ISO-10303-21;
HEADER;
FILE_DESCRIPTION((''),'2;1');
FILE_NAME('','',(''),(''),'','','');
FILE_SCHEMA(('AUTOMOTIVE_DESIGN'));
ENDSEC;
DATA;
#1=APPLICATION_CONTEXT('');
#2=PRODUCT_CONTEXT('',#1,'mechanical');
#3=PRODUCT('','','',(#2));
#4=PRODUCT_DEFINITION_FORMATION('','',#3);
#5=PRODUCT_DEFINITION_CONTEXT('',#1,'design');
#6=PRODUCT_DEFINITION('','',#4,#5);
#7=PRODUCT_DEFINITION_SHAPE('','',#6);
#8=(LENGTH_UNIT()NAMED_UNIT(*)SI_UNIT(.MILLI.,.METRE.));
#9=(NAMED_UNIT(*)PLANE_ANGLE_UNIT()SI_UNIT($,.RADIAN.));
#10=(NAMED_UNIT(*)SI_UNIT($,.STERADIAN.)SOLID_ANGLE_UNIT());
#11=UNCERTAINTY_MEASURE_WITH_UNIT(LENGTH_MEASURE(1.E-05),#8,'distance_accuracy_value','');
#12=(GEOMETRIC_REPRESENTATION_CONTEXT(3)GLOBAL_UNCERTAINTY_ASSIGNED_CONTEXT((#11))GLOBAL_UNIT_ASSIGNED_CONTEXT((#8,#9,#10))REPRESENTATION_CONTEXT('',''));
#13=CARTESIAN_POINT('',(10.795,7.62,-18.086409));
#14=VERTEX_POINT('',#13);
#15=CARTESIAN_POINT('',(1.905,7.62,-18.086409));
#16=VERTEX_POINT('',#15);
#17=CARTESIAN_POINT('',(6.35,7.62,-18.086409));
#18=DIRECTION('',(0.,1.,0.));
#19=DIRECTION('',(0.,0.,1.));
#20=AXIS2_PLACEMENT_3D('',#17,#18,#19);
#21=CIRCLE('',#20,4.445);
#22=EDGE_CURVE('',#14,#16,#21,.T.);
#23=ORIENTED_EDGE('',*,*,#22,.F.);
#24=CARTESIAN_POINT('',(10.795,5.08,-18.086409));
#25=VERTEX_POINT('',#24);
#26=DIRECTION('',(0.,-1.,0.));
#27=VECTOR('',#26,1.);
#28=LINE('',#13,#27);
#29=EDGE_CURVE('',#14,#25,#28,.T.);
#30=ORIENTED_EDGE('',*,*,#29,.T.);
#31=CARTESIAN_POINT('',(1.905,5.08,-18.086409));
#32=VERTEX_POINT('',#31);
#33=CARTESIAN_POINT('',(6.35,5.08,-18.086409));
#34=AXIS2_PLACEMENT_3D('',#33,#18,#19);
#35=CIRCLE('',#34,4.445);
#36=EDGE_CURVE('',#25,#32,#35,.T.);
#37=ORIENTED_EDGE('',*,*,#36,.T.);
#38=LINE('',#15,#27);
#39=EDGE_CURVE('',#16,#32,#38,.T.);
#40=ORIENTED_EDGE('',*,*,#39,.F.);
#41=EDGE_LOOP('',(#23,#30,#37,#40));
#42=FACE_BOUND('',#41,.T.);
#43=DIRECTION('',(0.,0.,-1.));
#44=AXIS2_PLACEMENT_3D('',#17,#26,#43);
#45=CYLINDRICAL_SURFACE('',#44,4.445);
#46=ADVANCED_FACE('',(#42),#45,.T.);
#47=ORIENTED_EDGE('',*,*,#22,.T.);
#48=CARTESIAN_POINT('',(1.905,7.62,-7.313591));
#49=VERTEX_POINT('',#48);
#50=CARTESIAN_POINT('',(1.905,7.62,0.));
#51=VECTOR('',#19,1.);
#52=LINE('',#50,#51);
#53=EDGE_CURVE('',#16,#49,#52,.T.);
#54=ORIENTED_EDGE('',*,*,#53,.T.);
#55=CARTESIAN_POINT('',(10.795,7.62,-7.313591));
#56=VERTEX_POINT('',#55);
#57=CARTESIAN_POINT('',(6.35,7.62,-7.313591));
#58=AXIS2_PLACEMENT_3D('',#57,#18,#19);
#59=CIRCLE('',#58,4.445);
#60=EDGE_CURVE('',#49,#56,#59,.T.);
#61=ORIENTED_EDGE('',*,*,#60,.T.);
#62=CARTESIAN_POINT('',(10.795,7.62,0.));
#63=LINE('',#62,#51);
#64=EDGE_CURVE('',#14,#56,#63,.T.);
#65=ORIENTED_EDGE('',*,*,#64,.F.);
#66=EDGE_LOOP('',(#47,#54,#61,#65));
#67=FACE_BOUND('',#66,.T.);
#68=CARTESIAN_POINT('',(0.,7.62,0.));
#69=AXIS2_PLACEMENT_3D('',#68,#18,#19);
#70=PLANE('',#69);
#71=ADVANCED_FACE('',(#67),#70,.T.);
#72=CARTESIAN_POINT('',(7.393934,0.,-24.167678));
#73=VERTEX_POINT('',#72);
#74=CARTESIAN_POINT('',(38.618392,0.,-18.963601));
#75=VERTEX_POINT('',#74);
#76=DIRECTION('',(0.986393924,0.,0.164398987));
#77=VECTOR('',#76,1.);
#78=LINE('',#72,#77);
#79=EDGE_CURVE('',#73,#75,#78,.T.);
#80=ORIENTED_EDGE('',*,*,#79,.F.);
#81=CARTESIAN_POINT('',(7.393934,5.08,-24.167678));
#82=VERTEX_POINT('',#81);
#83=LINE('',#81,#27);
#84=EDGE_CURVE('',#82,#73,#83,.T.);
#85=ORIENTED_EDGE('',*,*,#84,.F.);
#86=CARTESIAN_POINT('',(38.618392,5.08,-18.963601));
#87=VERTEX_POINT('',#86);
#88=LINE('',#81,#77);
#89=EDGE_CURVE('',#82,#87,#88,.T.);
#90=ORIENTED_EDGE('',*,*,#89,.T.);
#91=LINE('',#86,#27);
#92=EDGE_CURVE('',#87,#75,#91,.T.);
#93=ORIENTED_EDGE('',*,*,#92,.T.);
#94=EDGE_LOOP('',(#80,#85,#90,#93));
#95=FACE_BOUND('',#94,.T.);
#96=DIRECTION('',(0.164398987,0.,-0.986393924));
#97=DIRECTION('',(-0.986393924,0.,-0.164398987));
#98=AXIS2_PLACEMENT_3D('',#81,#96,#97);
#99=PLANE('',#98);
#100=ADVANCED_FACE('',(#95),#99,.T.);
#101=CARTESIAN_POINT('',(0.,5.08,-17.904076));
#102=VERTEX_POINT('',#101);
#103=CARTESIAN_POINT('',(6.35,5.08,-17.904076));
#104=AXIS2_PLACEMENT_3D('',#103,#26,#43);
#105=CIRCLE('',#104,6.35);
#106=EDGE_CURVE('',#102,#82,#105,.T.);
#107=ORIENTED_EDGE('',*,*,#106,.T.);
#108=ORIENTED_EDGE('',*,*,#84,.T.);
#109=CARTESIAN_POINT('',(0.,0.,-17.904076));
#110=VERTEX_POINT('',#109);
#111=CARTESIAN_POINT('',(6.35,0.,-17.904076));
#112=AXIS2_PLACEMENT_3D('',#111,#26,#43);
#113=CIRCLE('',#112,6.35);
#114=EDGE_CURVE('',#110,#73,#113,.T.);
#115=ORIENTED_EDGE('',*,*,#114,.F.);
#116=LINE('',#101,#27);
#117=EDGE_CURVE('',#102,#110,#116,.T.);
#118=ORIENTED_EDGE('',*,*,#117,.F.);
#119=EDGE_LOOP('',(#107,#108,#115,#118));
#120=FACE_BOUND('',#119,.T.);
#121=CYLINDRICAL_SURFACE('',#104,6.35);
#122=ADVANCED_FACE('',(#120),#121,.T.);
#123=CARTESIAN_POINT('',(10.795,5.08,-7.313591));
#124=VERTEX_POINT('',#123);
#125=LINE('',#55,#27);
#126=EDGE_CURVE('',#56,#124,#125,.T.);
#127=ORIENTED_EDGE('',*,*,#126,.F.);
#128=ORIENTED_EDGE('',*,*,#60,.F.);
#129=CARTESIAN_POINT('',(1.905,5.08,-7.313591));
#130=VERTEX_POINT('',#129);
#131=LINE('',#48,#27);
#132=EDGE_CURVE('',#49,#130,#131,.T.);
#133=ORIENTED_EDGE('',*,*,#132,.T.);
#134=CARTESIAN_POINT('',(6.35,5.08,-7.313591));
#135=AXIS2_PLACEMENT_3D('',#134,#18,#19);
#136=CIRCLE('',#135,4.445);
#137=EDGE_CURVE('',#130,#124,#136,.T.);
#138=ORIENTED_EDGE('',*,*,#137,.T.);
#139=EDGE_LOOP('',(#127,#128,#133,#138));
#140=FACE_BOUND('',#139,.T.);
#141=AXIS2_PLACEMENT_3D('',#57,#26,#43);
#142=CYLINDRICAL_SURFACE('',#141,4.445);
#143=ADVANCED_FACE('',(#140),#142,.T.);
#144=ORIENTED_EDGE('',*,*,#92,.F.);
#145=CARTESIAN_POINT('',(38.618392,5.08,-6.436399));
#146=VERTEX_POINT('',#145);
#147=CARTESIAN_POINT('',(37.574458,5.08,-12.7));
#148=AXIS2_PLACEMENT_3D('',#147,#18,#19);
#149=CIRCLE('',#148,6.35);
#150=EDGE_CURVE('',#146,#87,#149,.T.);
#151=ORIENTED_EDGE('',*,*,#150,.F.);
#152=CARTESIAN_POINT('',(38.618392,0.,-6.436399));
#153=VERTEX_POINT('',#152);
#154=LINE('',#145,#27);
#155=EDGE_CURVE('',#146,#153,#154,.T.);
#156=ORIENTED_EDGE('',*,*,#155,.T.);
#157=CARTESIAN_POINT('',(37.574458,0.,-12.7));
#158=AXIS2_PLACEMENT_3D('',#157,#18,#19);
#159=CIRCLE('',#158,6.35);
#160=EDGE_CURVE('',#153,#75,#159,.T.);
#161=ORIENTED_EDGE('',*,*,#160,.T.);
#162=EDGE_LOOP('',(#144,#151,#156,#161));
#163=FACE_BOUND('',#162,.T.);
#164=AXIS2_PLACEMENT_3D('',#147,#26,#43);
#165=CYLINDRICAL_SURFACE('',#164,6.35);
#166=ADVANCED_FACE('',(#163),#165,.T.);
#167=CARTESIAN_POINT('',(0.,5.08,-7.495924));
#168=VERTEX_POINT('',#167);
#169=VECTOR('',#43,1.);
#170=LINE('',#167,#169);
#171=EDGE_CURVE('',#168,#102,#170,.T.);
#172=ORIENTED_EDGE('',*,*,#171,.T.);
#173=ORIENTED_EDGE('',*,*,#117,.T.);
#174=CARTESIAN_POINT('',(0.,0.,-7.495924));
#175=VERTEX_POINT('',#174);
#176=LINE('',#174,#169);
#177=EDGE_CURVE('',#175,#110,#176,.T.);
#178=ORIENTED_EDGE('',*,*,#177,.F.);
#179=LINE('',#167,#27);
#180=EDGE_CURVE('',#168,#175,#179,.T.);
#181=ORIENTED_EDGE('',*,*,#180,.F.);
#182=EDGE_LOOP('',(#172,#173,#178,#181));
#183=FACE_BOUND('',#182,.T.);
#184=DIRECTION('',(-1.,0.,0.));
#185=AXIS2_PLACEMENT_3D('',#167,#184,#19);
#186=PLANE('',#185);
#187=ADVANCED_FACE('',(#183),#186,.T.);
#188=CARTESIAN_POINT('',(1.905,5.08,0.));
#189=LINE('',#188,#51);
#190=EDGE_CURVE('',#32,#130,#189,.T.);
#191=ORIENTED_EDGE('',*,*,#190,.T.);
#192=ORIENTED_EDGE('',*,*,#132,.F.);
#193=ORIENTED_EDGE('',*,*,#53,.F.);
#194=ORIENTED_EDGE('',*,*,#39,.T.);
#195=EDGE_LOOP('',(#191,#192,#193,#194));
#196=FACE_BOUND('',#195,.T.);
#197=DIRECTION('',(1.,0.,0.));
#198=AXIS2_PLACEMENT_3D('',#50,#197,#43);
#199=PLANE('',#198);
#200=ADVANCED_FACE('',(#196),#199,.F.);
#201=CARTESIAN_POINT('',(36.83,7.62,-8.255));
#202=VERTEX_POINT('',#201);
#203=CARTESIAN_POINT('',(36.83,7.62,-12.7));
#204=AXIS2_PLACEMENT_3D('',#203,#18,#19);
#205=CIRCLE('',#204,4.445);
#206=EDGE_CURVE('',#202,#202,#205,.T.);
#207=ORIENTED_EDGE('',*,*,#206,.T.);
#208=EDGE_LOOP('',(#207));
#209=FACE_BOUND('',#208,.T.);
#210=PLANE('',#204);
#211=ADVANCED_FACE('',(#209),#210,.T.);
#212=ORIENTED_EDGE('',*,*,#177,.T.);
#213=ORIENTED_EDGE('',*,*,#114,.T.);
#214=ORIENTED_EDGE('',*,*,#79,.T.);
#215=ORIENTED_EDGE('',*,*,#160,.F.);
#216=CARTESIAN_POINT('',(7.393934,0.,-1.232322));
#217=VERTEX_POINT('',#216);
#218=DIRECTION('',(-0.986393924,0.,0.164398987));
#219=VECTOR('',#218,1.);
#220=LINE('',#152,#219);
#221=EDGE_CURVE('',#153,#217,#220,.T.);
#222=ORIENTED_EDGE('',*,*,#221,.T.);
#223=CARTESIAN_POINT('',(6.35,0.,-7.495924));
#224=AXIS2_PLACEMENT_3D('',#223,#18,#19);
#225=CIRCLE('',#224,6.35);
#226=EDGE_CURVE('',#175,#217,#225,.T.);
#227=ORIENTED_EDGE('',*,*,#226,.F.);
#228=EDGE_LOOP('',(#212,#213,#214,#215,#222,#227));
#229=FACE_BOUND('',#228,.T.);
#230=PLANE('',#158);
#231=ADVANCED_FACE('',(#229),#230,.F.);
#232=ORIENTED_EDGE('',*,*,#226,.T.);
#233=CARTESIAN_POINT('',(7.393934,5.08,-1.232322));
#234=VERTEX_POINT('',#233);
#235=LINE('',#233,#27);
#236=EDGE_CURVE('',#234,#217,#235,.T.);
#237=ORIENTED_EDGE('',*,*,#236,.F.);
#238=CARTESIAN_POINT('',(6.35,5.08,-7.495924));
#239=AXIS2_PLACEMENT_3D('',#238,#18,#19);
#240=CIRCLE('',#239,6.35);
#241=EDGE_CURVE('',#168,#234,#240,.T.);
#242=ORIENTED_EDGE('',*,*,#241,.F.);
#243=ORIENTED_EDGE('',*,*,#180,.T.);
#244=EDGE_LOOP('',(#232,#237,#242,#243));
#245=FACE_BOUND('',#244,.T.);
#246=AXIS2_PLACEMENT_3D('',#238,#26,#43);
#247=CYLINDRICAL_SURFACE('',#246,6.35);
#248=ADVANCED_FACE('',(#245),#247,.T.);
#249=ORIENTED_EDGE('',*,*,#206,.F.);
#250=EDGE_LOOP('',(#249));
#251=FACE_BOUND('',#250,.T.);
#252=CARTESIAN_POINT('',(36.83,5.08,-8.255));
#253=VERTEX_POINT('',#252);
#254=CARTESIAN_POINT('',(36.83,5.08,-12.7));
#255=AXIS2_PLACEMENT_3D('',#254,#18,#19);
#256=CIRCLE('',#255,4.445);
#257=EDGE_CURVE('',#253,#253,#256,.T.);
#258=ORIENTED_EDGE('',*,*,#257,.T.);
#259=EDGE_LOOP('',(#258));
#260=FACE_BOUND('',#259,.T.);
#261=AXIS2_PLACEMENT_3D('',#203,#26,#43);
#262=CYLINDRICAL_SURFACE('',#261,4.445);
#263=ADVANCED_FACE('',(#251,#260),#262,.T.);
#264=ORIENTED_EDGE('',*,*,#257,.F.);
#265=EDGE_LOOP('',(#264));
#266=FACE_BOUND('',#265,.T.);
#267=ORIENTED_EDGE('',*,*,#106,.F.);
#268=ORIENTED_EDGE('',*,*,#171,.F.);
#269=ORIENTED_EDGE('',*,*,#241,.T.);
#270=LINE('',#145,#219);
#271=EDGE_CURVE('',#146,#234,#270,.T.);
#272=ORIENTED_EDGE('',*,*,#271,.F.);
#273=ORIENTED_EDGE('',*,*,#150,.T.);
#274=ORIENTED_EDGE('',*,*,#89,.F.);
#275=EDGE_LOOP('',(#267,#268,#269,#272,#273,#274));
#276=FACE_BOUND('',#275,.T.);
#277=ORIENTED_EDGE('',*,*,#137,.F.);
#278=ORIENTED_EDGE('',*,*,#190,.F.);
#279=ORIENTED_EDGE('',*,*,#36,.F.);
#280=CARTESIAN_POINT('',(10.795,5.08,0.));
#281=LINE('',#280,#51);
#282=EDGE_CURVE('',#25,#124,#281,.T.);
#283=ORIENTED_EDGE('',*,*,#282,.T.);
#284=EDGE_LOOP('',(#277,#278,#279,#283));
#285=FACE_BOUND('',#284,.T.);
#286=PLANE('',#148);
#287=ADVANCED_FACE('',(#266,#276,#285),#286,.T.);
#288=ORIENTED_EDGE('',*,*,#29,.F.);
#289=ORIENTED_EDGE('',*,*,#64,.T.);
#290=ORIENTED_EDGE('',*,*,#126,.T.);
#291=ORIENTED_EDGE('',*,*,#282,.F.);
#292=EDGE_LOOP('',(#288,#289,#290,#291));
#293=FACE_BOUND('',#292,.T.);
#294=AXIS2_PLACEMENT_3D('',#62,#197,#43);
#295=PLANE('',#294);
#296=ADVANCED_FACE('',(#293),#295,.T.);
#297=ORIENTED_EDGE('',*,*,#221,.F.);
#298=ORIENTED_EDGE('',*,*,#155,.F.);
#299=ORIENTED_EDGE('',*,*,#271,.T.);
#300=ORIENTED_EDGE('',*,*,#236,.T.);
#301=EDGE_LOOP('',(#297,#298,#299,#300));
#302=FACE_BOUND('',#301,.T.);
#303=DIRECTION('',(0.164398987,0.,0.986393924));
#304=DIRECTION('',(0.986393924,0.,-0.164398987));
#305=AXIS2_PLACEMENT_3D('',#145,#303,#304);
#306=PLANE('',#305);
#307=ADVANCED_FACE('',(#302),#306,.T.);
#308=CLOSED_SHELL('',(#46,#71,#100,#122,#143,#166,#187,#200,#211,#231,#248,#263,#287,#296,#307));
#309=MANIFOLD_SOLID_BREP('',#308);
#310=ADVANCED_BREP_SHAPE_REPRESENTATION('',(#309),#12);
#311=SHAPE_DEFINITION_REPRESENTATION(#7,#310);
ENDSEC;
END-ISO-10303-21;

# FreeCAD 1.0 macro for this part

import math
import FreeCAD as App
import Part
import Sketcher

V = App.Vector
Q = App.Units.Quantity

doc = App.newDocument("Part")
body = doc.addObject("PartDesign::Body", "Body")

# Sketch on XZ plane
sketch1 = body.newObject("Sketcher::SketchObject", "Sketch")
sketch1.AttachmentSupport = (doc.getObject("XZ_Plane"), [""])
sketch1.MapMode = "FlatFace"
sketch1.addGeometry(Part.LineSegment(V(0, -17.904076, 0), V(0, -7.495924, 0)), False)
sketch1.addGeometry(Part.ArcOfCircle(Part.Circle(V(6.35, -7.495924, 0), V(0, 0, 1), 6.35), math.radians(80.537678), math.radians(180)), False)
sketch1.addGeometry(Part.LineSegment(V(7.393934, -1.232322, 0), V(38.618392, -6.436399, 0)), False)
sketch1.addGeometry(Part.ArcOfCircle(Part.Circle(V(37.574458, -12.7, 0), V(0, 0, 1), 6.35), math.radians(-80.537678), math.radians(80.537678)), False)
sketch1.addGeometry(Part.LineSegment(V(38.618392, -18.963601, 0), V(7.393934, -24.167678, 0)), False)
sketch1.addGeometry(Part.ArcOfCircle(Part.Circle(V(6.35, -17.904076, 0), V(0, 0, 1), 6.35), math.radians(180), math.radians(279.462322)), False)
sketch1.addConstraint(Sketcher.Constraint("Tangent", 0, 2, 1, 2))
sketch1.addConstraint(Sketcher.Constraint("Tangent", 1, 1, 2, 1))
sketch1.addConstraint(Sketcher.Constraint("Tangent", 2, 2, 3, 2))
sketch1.addConstraint(Sketcher.Constraint("Tangent", 3, 1, 4, 1))
sketch1.addConstraint(Sketcher.Constraint("Tangent", 4, 2, 5, 2))
sketch1.addConstraint(Sketcher.Constraint("Tangent", 5, 1, 0, 1))
sketch1.addConstraint(Sketcher.Constraint("Vertical", 0))
sketch1.addConstraint(Sketcher.Constraint("Equal", 1, 3))
sketch1.addConstraint(Sketcher.Constraint("Equal", 3, 5))
sketch1.addConstraint(Sketcher.Constraint("PointOnObject", 0, 2, -2))
sketch1.addConstraint(Sketcher.Constraint("Vertical", 2, 2, 3, 1))
sketch1.addConstraint(Sketcher.Constraint("Radius", 1, Q("0.25 in")))
sketch1.addConstraint(Sketcher.Constraint("DistanceY", 3, 3, -1, 1, Q("0.5 in")))
sketch1.addConstraint(Sketcher.Constraint("DistanceY", 2, 2, -1, 1, Q("6.436399 mm")))
sketch1.addConstraint(Sketcher.Constraint("Distance", 2, Q("31.65516 mm")))
pad1 = body.newObject("PartDesign::Pad", "Pad")
pad1.Profile = sketch1
pad1.Length = Q("0.2 in")
pad1.Reversed = True

# Sketch on XZ plane
sketch2 = body.newObject("Sketcher::SketchObject", "Sketch001")
sketch2.AttachmentSupport = (doc.getObject("XZ_Plane"), [""])
sketch2.MapMode = "FlatFace"
sketch2.AttachmentOffset = App.Placement(V(0, 0, -0.2 * 25.4), App.Rotation())
sketch2.addGeometry(Part.LineSegment(V(1.905, -18.086409, 0), V(1.905, -7.313591, 0)), False)
sketch2.addGeometry(Part.ArcOfCircle(Part.Circle(V(6.35, -7.313591, 0), V(0, 0, 1), 4.445), math.radians(0), math.radians(180)), False)
sketch2.addGeometry(Part.LineSegment(V(10.795, -7.313591, 0), V(10.795, -18.086409, 0)), False)
sketch2.addGeometry(Part.ArcOfCircle(Part.Circle(V(6.35, -18.086409, 0), V(0, 0, 1), 4.445), math.radians(180), math.radians(360)), False)
sketch2.addGeometry(Part.Circle(V(36.83, -12.7, 0), V(0, 0, 1), 4.445), False)
sketch2.addConstraint(Sketcher.Constraint("Tangent", 0, 2, 1, 2))
sketch2.addConstraint(Sketcher.Constraint("Tangent", 1, 1, 2, 1))
sketch2.addConstraint(Sketcher.Constraint("Tangent", 2, 2, 3, 2))
sketch2.addConstraint(Sketcher.Constraint("Tangent", 3, 1, 0, 1))
sketch2.addConstraint(Sketcher.Constraint("Vertical", 0))
sketch2.addConstraint(Sketcher.Constraint("Vertical", 2))
sketch2.addConstraint(Sketcher.Constraint("Equal", 3, 4))
sketch2.addConstraint(Sketcher.Constraint("Diameter", 4, Q("0.35 in")))
sketch2.addConstraint(Sketcher.Constraint("DistanceY", 4, 3, -1, 1, Q("0.5 in")))
sketch2.addConstraint(Sketcher.Constraint("DistanceX", 1, 3, 4, 3, Q("1.2 in")))
sketch2.addConstraint(Sketcher.Constraint("DistanceX", -1, 1, 1, 3, Q("0.25 in")))
sketch2.addConstraint(Sketcher.Constraint("DistanceY", 0, 1, 0, 2, Q("10.772819 mm")))
sketch2.addConstraint(Sketcher.Constraint("DistanceY", 1, 3, -1, 1, Q("7.313591 mm")))
pad2 = body.newObject("PartDesign::Pad", "Pad001")
pad2.Profile = sketch2
pad2.Length = Q("0.1 in")
pad2.Reversed = True

doc.recompute()
